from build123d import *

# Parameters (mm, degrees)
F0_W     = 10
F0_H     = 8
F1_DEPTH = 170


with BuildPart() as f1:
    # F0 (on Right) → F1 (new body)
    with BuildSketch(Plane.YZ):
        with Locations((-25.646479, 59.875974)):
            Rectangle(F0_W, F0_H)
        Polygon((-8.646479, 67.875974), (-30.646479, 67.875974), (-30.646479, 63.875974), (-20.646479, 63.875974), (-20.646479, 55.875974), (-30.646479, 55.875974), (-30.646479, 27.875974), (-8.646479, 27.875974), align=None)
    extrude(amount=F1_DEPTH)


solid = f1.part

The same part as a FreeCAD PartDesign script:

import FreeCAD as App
import Part
import Sketcher

doc = App.newDocument("Part")
body = doc.addObject("PartDesign::Body", "Body")

# Sketch on YZ plane
sketch1 = body.newObject("Sketcher::SketchObject", "Sketch")
sketch1.AttachmentSupport = (doc.getObject("YZ_Plane"), [""])
sketch1.MapMode = "FlatFace"
sketch1.addGeometry([
    Part.LineSegment(App.Vector(-31, 28, 0), App.Vector(-9, 28, 0)),
    Part.LineSegment(App.Vector(-9, 28, 0), App.Vector(-9, 68, 0)),
    Part.LineSegment(App.Vector(-9, 68, 0), App.Vector(-31, 68, 0)),
    Part.LineSegment(App.Vector(-31, 68, 0), App.Vector(-31, 28, 0)),
], False)
sketch1.addConstraint([
    Sketcher.Constraint("Coincident", 0, 2, 1, 1),
    Sketcher.Constraint("Coincident", 1, 2, 2, 1),
    Sketcher.Constraint("Coincident", 2, 2, 3, 1),
    Sketcher.Constraint("Coincident", 3, 2, 0, 1),
    Sketcher.Constraint("Horizontal", 0),
    Sketcher.Constraint("Vertical", 1),
    Sketcher.Constraint("Horizontal", 2),
    Sketcher.Constraint("Vertical", 3),
    Sketcher.Constraint("DistanceX", 0, 1, 0, 2, 22.0),
    Sketcher.Constraint("DistanceY", 1, 1, 1, 2, 40.0),
    Sketcher.Constraint("DistanceX", 0, 2, -1, 1, 8.646479),
    Sketcher.Constraint("DistanceY", -1, 1, 0, 2, 27.875974),
])
pad1 = body.newObject("PartDesign::Pad", "Pad")
pad1.Profile = sketch1
pad1.Length = 170

doc.recompute()
